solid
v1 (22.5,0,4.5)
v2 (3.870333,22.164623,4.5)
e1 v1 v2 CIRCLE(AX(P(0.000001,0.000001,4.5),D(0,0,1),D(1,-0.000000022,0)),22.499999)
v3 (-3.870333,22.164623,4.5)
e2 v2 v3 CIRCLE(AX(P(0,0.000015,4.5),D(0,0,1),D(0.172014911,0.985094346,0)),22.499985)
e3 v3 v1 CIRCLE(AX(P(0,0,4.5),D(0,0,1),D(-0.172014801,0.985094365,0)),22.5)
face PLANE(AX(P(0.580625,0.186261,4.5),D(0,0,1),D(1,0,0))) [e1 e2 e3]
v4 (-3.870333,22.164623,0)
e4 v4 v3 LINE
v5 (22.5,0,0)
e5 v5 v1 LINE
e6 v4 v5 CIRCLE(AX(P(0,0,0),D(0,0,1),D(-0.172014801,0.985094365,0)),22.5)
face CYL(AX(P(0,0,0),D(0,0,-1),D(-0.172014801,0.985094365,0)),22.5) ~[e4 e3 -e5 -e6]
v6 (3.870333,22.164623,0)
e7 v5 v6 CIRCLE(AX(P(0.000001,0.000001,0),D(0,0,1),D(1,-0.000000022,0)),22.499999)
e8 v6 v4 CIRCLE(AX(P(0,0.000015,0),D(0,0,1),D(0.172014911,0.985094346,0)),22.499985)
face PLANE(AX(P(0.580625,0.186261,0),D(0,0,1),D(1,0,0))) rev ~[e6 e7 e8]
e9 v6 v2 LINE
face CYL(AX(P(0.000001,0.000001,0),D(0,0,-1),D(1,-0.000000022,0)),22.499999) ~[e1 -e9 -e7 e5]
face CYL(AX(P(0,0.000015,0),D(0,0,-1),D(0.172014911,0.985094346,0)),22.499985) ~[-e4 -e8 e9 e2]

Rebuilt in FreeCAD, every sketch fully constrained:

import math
import FreeCAD as App
import Part
import Sketcher
from FreeCAD import Vector

doc = App.newDocument("Part")
body = doc.addObject("PartDesign::Body", "Body")

# Sketch on XY plane
sketch1 = body.newObject("Sketcher::SketchObject", "Sketch")
sketch1.AttachmentSupport = (doc.getObject("XY_Plane"), [""])
sketch1.MapMode = "FlatFace"
sketch1.addGeometry([
    Part.ArcOfCircle(Part.Circle(Vector(0, 0, 0), Vector(0, 0, 1), 22.5), math.radians(99.904985), math.radians(360.000001)),
    Part.ArcOfCircle(Part.Circle(Vector(0.000001, 0.000001, 0), Vector(0, 0, 1), 22.499999), math.radians(-0.000001), math.radians(80.095017)),
    Part.ArcOfCircle(Part.Circle(Vector(0, 0.000015, 0), Vector(0, 0, 1), 22.499985), math.radians(80.095009), math.radians(99.904991)),
], False)
sketch1.addConstraint([
    Sketcher.Constraint("Coincident", 0, 2, 1, 1),
    Sketcher.Constraint("Coincident", 1, 2, 2, 1),
    Sketcher.Constraint("Coincident", 2, 2, 0, 1),
    Sketcher.Constraint("Coincident", 0, 3, -1, 1),
    Sketcher.Constraint("Coincident", 1, 3, -1, 1),
    Sketcher.Constraint("PointOnObject", 0, 2, -1),
    Sketcher.Constraint("Radius", 0, 22.5),
    Sketcher.Constraint("Radius", 2, 22.499985),
    Sketcher.Constraint("DistanceY", 2, 3, 1, 2, 22.164608),
    Sketcher.Constraint("DistanceY", 2, 3, 2, 2, 22.164608),
])
pad1 = body.newObject("PartDesign::Pad", "Pad")
pad1.Profile = sketch1
pad1.Length = 4.5

doc.recompute()
